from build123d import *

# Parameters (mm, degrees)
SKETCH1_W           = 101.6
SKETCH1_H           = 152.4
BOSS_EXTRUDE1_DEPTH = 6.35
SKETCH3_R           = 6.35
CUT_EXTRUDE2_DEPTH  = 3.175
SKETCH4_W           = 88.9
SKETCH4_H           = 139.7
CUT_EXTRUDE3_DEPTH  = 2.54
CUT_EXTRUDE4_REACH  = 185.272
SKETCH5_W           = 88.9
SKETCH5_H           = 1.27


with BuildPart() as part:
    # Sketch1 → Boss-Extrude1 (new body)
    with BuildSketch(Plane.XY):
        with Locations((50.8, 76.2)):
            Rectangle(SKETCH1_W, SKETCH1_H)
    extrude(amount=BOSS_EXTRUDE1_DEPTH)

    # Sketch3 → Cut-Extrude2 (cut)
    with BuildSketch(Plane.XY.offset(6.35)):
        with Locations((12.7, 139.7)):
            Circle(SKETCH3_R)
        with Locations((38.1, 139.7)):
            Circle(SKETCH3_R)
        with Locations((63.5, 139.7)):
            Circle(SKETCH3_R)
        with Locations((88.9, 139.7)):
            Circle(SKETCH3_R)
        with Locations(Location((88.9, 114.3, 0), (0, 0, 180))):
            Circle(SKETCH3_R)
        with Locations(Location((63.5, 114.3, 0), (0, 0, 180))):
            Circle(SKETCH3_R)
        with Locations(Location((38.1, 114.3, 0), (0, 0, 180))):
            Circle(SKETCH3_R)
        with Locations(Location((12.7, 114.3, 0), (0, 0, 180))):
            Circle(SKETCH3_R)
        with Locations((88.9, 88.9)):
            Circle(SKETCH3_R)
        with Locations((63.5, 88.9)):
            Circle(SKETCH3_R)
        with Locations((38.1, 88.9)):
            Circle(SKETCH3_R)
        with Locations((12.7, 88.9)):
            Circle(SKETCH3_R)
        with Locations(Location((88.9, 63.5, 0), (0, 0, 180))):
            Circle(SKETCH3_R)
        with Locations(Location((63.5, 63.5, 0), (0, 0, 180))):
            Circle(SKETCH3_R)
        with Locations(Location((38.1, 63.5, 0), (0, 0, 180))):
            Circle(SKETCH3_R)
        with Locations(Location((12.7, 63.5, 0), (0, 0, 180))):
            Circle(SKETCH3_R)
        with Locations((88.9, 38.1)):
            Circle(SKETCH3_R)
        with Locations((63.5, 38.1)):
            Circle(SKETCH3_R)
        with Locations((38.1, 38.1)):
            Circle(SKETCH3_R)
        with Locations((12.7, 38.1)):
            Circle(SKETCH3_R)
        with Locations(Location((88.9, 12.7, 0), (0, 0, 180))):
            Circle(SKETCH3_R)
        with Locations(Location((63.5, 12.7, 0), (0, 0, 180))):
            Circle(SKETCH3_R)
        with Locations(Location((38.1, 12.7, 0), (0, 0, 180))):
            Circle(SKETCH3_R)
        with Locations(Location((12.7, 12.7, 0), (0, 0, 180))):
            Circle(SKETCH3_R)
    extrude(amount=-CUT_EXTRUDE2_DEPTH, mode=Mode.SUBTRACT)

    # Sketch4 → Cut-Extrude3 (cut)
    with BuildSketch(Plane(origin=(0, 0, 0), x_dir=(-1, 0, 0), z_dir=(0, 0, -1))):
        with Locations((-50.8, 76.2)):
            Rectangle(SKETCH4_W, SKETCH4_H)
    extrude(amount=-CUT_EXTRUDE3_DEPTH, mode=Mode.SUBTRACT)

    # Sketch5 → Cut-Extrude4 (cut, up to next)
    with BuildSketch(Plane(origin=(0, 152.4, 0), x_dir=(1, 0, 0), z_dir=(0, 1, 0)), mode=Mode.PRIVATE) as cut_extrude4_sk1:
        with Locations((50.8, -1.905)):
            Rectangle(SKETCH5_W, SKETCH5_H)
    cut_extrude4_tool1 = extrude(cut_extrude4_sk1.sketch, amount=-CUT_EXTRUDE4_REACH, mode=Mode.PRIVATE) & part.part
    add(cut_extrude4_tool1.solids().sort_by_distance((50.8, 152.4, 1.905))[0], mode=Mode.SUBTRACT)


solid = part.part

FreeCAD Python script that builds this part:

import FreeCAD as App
import Part
import Sketcher

V = App.Vector
Q = App.Units.Quantity


def add_polygon(sketch, points):
    """Adds a closed chain of lines whose ends are joined by coincident constraints."""
    first, n = sketch.GeometryCount, len(points)
    for a, b in zip(points, points[1:] + points[:1]):
        sketch.addGeometry(Part.LineSegment(App.Vector(*a, 0), App.Vector(*b, 0)), False)
    for i in range(n):
        sketch.addConstraint(Sketcher.Constraint("Coincident", first + i, 2, first + (i + 1) % n, 1))

doc = App.newDocument("Part")
body = doc.addObject("PartDesign::Body", "Body")

# Sketch on XY plane
sketch1 = body.newObject("Sketcher::SketchObject", "Sketch")
sketch1.AttachmentSupport = (doc.getObject("XY_Plane"), [""])
sketch1.MapMode = "FlatFace"
add_polygon(sketch1, [(0, 152.4), (0, 0), (101.6, 0), (101.6, 152.4)])  # lines 0-3
sketch1.addConstraint([
    Sketcher.Constraint("Vertical", 0),
    Sketcher.Constraint("Horizontal", 1),
    Sketcher.Constraint("Vertical", 2),
    Sketcher.Constraint("Horizontal", 3),
    Sketcher.Constraint("Coincident", 0, 2, -1, 1),
    Sketcher.Constraint("DistanceX", 1, 1, 1, 2, Q("4 in")),
    Sketcher.Constraint("DistanceY", 0, 2, 0, 1, Q("6 in")),
])
pad1 = body.newObject("PartDesign::Pad", "Pad")
pad1.Profile = sketch1
pad1.Length = Q("0.25 in")

# Sketch on XY plane
sketch2 = body.newObject("Sketcher::SketchObject", "Sketch001")
sketch2.AttachmentSupport = (doc.getObject("XY_Plane"), [""])
sketch2.MapMode = "FlatFace"
sketch2.AttachmentOffset = App.Placement(V(0, 0, 0.25 * 25.4), App.Rotation())
sketch2.addGeometry([
    Part.Circle(V(12.7, 139.7, 0), V(0, 0, 1), 6.35),  # 0
    Part.Circle(V(38.1, 139.7, 0), V(0, 0, 1), 6.35),  # 1
    Part.Circle(V(63.5, 139.7, 0), V(0, 0, 1), 6.35),  # 2
    Part.Circle(V(88.9, 139.7, 0), V(0, 0, 1), 6.35),  # 3
    Part.Circle(V(88.9, 114.3, 0), V(0, 0, 1), 6.35),  # 4
    Part.Circle(V(63.5, 114.3, 0), V(0, 0, 1), 6.35),  # 5
    Part.Circle(V(38.1, 114.3, 0), V(0, 0, 1), 6.35),  # 6
    Part.Circle(V(12.7, 114.3, 0), V(0, 0, 1), 6.35),  # 7
    Part.Circle(V(88.9, 88.9, 0), V(0, 0, 1), 6.35),  # 8
    Part.Circle(V(63.5, 88.9, 0), V(0, 0, 1), 6.35),  # 9
    Part.Circle(V(38.1, 88.9, 0), V(0, 0, 1), 6.35),  # 10
    Part.Circle(V(12.7, 88.9, 0), V(0, 0, 1), 6.35),  # 11
    Part.Circle(V(88.9, 63.5, 0), V(0, 0, 1), 6.35),  # 12
    Part.Circle(V(63.5, 63.5, 0), V(0, 0, 1), 6.35),  # 13
    Part.Circle(V(38.1, 63.5, 0), V(0, 0, 1), 6.35),  # 14
    Part.Circle(V(12.7, 63.5, 0), V(0, 0, 1), 6.35),  # 15
    Part.Circle(V(88.9, 38.1, 0), V(0, 0, 1), 6.35),  # 16
    Part.Circle(V(63.5, 38.1, 0), V(0, 0, 1), 6.35),  # 17
    Part.Circle(V(38.1, 38.1, 0), V(0, 0, 1), 6.35),  # 18
    Part.Circle(V(12.7, 38.1, 0), V(0, 0, 1), 6.35),  # 19
    Part.Circle(V(88.9, 12.7, 0), V(0, 0, 1), 6.35),  # 20
    Part.Circle(V(63.5, 12.7, 0), V(0, 0, 1), 6.35),  # 21
    Part.Circle(V(38.1, 12.7, 0), V(0, 0, 1), 6.35),  # 22
    Part.Circle(V(12.7, 12.7, 0), V(0, 0, 1), 6.35),  # 23
], False)
sketch2.addConstraint([
    Sketcher.Constraint("Equal", 0, 1),
    Sketcher.Constraint("Equal", 1, 2),
    Sketcher.Constraint("Equal", 2, 3),
    Sketcher.Constraint("Equal", 3, 4),
    Sketcher.Constraint("Equal", 4, 5),
    Sketcher.Constraint("Equal", 5, 6),
    Sketcher.Constraint("Equal", 6, 7),
    Sketcher.Constraint("Equal", 7, 8),
    Sketcher.Constraint("Equal", 8, 9),
    Sketcher.Constraint("Equal", 9, 10),
    Sketcher.Constraint("Equal", 10, 11),
    Sketcher.Constraint("Equal", 11, 12),
    Sketcher.Constraint("Equal", 12, 13),
    Sketcher.Constraint("Equal", 13, 14),
    Sketcher.Constraint("Equal", 14, 15),
    Sketcher.Constraint("Equal", 15, 16),
    Sketcher.Constraint("Equal", 16, 17),
    Sketcher.Constraint("Equal", 17, 18),
    Sketcher.Constraint("Equal", 18, 19),
    Sketcher.Constraint("Equal", 19, 20),
    Sketcher.Constraint("Equal", 20, 21),
    Sketcher.Constraint("Equal", 21, 22),
    Sketcher.Constraint("Equal", 22, 23),
    Sketcher.Constraint("Horizontal", 0, 3, 1, 3),
    Sketcher.Constraint("Horizontal", 1, 3, 2, 3),
    Sketcher.Constraint("Horizontal", 2, 3, 3, 3),
    Sketcher.Constraint("Horizontal", 4, 3, 5, 3),
    Sketcher.Constraint("Horizontal", 5, 3, 6, 3),
    Sketcher.Constraint("Horizontal", 6, 3, 7, 3),
    Sketcher.Constraint("Horizontal", 8, 3, 9, 3),
    Sketcher.Constraint("Horizontal", 9, 3, 10, 3),
    Sketcher.Constraint("Horizontal", 10, 3, 11, 3),
    Sketcher.Constraint("Horizontal", 12, 3, 13, 3),
    Sketcher.Constraint("Horizontal", 13, 3, 14, 3),
    Sketcher.Constraint("Horizontal", 14, 3, 15, 3),
    Sketcher.Constraint("Horizontal", 16, 3, 17, 3),
    Sketcher.Constraint("Horizontal", 17, 3, 18, 3),
    Sketcher.Constraint("Horizontal", 18, 3, 19, 3),
    Sketcher.Constraint("Horizontal", 20, 3, 21, 3),
    Sketcher.Constraint("Horizontal", 21, 3, 22, 3),
    Sketcher.Constraint("Horizontal", 22, 3, 23, 3),
    Sketcher.Constraint("Vertical", 3, 3, 4, 3),
    Sketcher.Constraint("Vertical", 2, 3, 5, 3),
    Sketcher.Constraint("Vertical", 1, 3, 6, 3),
    Sketcher.Constraint("Vertical", 0, 3, 7, 3),
    Sketcher.Constraint("Vertical", 4, 3, 8, 3),
    Sketcher.Constraint("Vertical", 5, 3, 9, 3),
    Sketcher.Constraint("Vertical", 6, 3, 10, 3),
    Sketcher.Constraint("Vertical", 7, 3, 11, 3),
    Sketcher.Constraint("Vertical", 8, 3, 12, 3),
    Sketcher.Constraint("Vertical", 9, 3, 13, 3),
    Sketcher.Constraint("Vertical", 10, 3, 14, 3),
    Sketcher.Constraint("Vertical", 11, 3, 15, 3),
    Sketcher.Constraint("Vertical", 12, 3, 16, 3),
    Sketcher.Constraint("Vertical", 13, 3, 17, 3),
    Sketcher.Constraint("Vertical", 14, 3, 18, 3),
    Sketcher.Constraint("Vertical", 15, 3, 19, 3),
    Sketcher.Constraint("Vertical", 16, 3, 20, 3),
    Sketcher.Constraint("Vertical", 17, 3, 21, 3),
    Sketcher.Constraint("Vertical", 18, 3, 22, 3),
    Sketcher.Constraint("Vertical", 19, 3, 23, 3),
    Sketcher.Constraint("Diameter", 0, Q("0.5 in")),
    Sketcher.Constraint("DistanceX", 0, 3, 1, 3, Q("1 in")),
    Sketcher.Constraint("DistanceX", 1, 3, 2, 3, Q("1 in")),
    Sketcher.Constraint("DistanceX", 2, 3, 3, 3, Q("1 in")),
    Sketcher.Constraint("DistanceY", 4, 3, 3, 3, Q("1 in")),
    Sketcher.Constraint("DistanceY", 8, 3, 4, 3, Q("1 in")),
    Sketcher.Constraint("DistanceY", 12, 3, 8, 3, Q("1 in")),
    Sketcher.Constraint("DistanceY", 16, 3, 12, 3, Q("1 in")),
    Sketcher.Constraint("DistanceY", 20, 3, 16, 3, Q("1 in")),
    Sketcher.Constraint("DistanceX", -1, 1, 0, 3, Q("0.5 in")),
    Sketcher.Constraint("DistanceY", -1, 1, 0, 3, Q("5.5 in")),
])
pocket1 = body.newObject("PartDesign::Pocket", "Pocket")
pocket1.Profile = sketch2
pocket1.Length = Q("0.125 in")

# Sketch on XY plane
sketch3 = body.newObject("Sketcher::SketchObject", "Sketch002")
sketch3.AttachmentSupport = (doc.getObject("XY_Plane"), [""])
sketch3.MapMode = "FlatFace"
add_polygon(sketch3, [(95.25, 146.05), (95.25, 6.35), (6.35, 6.35), (6.35, 146.05)])  # lines 0-3
sketch3.addConstraint([
    Sketcher.Constraint("Vertical", 0),
    Sketcher.Constraint("Horizontal", 1),
    Sketcher.Constraint("Vertical", 2),
    Sketcher.Constraint("Horizontal", 3),
    Sketcher.Constraint("DistanceX", 1, 2, 1, 1, Q("3.5 in")),
    Sketcher.Constraint("DistanceY", 0, 2, 0, 1, Q("5.5 in")),
    Sketcher.Constraint("DistanceX", -1, 1, 0, 2, Q("3.75 in")),
    Sketcher.Constraint("DistanceY", -1, 1, 0, 2, Q("0.25 in")),
])
pocket2 = body.newObject("PartDesign::Pocket", "Pocket001")
pocket2.Profile = sketch3
pocket2.Length = Q("0.1 in")
pocket2.Reversed = True

# Sketch on XZ plane
sketch4 = body.newObject("Sketcher::SketchObject", "Sketch003")
sketch4.AttachmentSupport = (doc.getObject("XZ_Plane"), [""])
sketch4.MapMode = "FlatFace"
sketch4.AttachmentOffset = App.Placement(V(0, 0, -6 * 25.4), App.Rotation())
add_polygon(sketch4, [(6.35, 1.27), (6.35, 2.54), (95.25, 2.54), (95.25, 1.27)])  # lines 0-3
sketch4.addConstraint([
    Sketcher.Constraint("Vertical", 0),
    Sketcher.Constraint("Horizontal", 1),
    Sketcher.Constraint("Vertical", 2),
    Sketcher.Constraint("Horizontal", 3),
    Sketcher.Constraint("DistanceX", 1, 1, 1, 2, Q("3.5 in")),
    Sketcher.Constraint("DistanceY", 0, 1, 0, 2, Q("0.05 in")),
    Sketcher.Constraint("DistanceY", -1, 1, 0, 2, Q("0.1 in")),
    Sketcher.Constraint("DistanceX", -1, 1, 0, 2, Q("0.25 in")),
])
pocket3 = body.newObject("PartDesign::Pocket", "Pocket002")
pocket3.Profile = sketch4
pocket3.Type = "UpToFirst"
pocket3.Reversed = True

doc.recompute()
